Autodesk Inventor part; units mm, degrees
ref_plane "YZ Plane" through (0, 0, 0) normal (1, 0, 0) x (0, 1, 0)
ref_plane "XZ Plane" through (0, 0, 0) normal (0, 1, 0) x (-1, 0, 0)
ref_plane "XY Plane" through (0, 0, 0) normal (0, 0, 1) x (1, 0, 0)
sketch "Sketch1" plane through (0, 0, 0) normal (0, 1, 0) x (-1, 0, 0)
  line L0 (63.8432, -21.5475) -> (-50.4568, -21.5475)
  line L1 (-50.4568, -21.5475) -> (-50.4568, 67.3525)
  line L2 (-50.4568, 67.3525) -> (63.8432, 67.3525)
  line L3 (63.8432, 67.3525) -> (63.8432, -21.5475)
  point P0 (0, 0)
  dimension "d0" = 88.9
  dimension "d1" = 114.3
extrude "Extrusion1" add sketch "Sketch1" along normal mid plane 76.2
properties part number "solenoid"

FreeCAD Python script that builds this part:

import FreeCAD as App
import Part
import Sketcher
Q = App.Units.Quantity

doc = App.newDocument("Part")
body = doc.addObject("PartDesign::Body", "Body")

# Sketch on XZ plane
sketch1 = body.newObject("Sketcher::SketchObject", "Sketch")
sketch1.AttachmentSupport = (doc.getObject("XZ_Plane"), [""])
sketch1.MapMode = "FlatFace"
sketch1.addGeometry([
    Part.LineSegment(App.Vector(50.4568, -21.5475, 0), App.Vector(-63.8432, -21.5475, 0)),
    Part.LineSegment(App.Vector(-63.8432, -21.5475, 0), App.Vector(-63.8432, 67.3525, 0)),
    Part.LineSegment(App.Vector(-63.8432, 67.3525, 0), App.Vector(50.4568, 67.3525, 0)),
    Part.LineSegment(App.Vector(50.4568, 67.3525, 0), App.Vector(50.4568, -21.5475, 0)),
], False)
sketch1.addConstraint([
    Sketcher.Constraint("Coincident", 0, 2, 1, 1),
    Sketcher.Constraint("Coincident", 1, 2, 2, 1),
    Sketcher.Constraint("Coincident", 2, 2, 3, 1),
    Sketcher.Constraint("Coincident", 3, 2, 0, 1),
    Sketcher.Constraint("Horizontal", 0),
    Sketcher.Constraint("Vertical", 1),
    Sketcher.Constraint("Horizontal", 2),
    Sketcher.Constraint("Vertical", 3),
    Sketcher.Constraint("DistanceX", 0, 2, 0, 1, Q("4.5 in")),
    Sketcher.Constraint("DistanceY", 1, 1, 1, 2, Q("3.5 in")),
    Sketcher.Constraint("DistanceX", 0, 2, -1, 1, Q("2.5135 in")),
    Sketcher.Constraint("DistanceY", 0, 2, -1, 1, 21.5475),
])
pad1 = body.newObject("PartDesign::Pad", "Pad")
pad1.Profile = sketch1
pad1.Length = Q("3 in")
pad1.Midplane = True

doc.recompute()
